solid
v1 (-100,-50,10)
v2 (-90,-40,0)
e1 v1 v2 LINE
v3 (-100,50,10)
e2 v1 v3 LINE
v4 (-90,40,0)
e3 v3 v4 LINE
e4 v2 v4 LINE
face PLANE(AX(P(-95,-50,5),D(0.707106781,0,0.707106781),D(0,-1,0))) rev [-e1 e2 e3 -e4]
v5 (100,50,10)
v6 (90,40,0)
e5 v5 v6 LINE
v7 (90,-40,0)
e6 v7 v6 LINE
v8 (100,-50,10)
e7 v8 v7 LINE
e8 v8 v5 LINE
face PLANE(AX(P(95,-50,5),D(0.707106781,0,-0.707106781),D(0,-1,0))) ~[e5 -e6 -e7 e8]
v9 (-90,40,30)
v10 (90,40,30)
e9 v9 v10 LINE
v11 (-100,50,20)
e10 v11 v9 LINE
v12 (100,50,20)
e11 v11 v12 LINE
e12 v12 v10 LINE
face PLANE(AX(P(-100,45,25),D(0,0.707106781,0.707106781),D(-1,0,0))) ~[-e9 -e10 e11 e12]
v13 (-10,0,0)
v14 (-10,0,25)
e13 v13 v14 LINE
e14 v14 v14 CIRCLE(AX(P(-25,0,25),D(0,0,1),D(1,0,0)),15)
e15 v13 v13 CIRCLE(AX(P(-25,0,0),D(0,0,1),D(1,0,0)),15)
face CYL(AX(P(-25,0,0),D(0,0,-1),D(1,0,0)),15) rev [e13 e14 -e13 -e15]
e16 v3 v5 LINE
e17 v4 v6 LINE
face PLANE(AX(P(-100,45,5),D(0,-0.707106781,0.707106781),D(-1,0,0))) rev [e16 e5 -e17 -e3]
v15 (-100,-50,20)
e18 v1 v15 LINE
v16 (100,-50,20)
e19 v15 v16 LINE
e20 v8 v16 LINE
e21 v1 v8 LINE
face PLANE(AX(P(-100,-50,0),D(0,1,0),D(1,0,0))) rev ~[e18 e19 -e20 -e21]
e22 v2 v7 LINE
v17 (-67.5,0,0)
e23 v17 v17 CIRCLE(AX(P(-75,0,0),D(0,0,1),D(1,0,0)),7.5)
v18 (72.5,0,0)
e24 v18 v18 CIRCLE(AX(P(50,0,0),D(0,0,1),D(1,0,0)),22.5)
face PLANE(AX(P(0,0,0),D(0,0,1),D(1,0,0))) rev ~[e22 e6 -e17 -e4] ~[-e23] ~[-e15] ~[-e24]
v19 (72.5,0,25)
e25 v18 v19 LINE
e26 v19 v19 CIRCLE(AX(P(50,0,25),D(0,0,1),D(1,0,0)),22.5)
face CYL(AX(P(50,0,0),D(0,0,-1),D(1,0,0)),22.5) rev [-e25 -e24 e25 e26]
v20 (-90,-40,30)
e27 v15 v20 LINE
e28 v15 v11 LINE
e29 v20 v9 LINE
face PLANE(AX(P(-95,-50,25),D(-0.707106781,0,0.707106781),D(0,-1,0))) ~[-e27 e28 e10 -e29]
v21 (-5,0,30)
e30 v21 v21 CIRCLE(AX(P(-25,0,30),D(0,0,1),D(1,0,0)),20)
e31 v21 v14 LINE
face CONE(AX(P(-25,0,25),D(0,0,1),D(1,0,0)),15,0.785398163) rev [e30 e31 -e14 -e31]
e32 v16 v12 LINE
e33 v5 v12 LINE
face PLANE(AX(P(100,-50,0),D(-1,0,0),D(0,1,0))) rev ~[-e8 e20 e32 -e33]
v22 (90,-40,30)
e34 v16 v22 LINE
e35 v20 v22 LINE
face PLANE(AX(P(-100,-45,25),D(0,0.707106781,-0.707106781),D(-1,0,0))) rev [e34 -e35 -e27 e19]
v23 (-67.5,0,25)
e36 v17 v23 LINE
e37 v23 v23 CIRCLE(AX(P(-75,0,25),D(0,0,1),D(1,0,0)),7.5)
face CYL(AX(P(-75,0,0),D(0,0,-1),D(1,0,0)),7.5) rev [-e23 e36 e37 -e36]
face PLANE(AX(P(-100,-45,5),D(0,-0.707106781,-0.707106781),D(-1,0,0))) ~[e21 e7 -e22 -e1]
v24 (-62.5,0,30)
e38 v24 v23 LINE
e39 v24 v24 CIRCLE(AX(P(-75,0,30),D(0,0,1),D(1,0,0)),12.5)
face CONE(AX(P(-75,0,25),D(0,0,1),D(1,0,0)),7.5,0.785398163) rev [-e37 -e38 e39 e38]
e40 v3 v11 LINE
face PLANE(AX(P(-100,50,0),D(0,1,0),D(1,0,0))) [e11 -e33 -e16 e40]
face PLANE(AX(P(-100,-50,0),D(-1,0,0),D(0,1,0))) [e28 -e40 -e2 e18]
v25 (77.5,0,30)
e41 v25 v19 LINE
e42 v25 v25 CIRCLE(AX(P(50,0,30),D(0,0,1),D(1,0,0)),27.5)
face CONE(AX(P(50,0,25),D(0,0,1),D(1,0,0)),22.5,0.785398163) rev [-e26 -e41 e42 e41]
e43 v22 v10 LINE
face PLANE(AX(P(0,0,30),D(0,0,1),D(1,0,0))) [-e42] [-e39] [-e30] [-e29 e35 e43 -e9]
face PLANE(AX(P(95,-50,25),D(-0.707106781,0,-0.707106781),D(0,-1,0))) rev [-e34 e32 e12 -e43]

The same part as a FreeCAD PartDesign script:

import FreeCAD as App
import Part
import Sketcher

V = App.Vector


def edges_at(feature, points):
    """Names of the edges that pass closest to the given points."""
    edges = feature.Shape.Edges
    near = lambda p: min(range(len(edges)), key=lambda i: edges[i].distToShape(Part.Vertex(*p))[0])
    return sorted({f"Edge{near(p) + 1}" for p in points})

doc = App.newDocument("Part")
body = doc.addObject("PartDesign::Body", "Body")

# Sketch on XY plane
sketch1 = body.newObject("Sketcher::SketchObject", "Sketch")
sketch1.AttachmentSupport = (doc.getObject("XY_Plane"), [""])
sketch1.MapMode = "FlatFace"
sketch1.addGeometry(Part.LineSegment(V(-100, 50, 0), V(-100, -50, 0)), False)
sketch1.addGeometry(Part.LineSegment(V(-100, -50, 0), V(100, -50, 0)), False)
sketch1.addGeometry(Part.LineSegment(V(100, -50, 0), V(100, 50, 0)), False)
sketch1.addGeometry(Part.LineSegment(V(100, 50, 0), V(-100, 50, 0)), False)
sketch1.addGeometry(Part.Circle(V(-75, 0, 0), V(0, 0, 1), 8), False)
sketch1.addGeometry(Part.Circle(V(-25, 0, 0), V(0, 0, 1), 15), False)
sketch1.addGeometry(Part.Circle(V(50, 0, 0), V(0, 0, 1), 22), False)
sketch1.addConstraint(Sketcher.Constraint("Coincident", 0, 2, 1, 1))
sketch1.addConstraint(Sketcher.Constraint("Coincident", 1, 2, 2, 1))
sketch1.addConstraint(Sketcher.Constraint("Coincident", 2, 2, 3, 1))
sketch1.addConstraint(Sketcher.Constraint("Coincident", 3, 2, 0, 1))
sketch1.addConstraint(Sketcher.Constraint("Vertical", 0))
sketch1.addConstraint(Sketcher.Constraint("Horizontal", 1))
sketch1.addConstraint(Sketcher.Constraint("Vertical", 2))
sketch1.addConstraint(Sketcher.Constraint("Horizontal", 3))
sketch1.addConstraint(Sketcher.Constraint("Symmetric", 0, 2, 2, 2, -1, 1))
sketch1.addConstraint(Sketcher.Constraint("PointOnObject", 4, 3, -1))
sketch1.addConstraint(Sketcher.Constraint("PointOnObject", 5, 3, -1))
sketch1.addConstraint(Sketcher.Constraint("PointOnObject", 6, 3, -1))
sketch1.addConstraint(Sketcher.Constraint("Diameter", 4, 15.0))
sketch1.addConstraint(Sketcher.Constraint("Diameter", 5, 30.0))
sketch1.addConstraint(Sketcher.Constraint("Diameter", 6, 45.0))
sketch1.addConstraint(Sketcher.Constraint("DistanceX", 1, 1, 1, 2, 200.0))
sketch1.addConstraint(Sketcher.Constraint("DistanceY", 0, 2, 0, 1, 100.0))
sketch1.addConstraint(Sketcher.Constraint("DistanceX", 4, 3, -1, 1, 75.0))
sketch1.addConstraint(Sketcher.Constraint("DistanceX", 5, 3, -1, 1, 25.0))
sketch1.addConstraint(Sketcher.Constraint("DistanceX", -1, 1, 6, 3, 50.0))
pad1 = body.newObject("PartDesign::Pad", "Pad")
pad1.Profile = sketch1
pad1.Length = 30
doc.recompute()

chamfer = body.newObject("PartDesign::Chamfer", "Chamfer")
chamfer.Base = (pad1, edges_at(pad1, [
    (-100, 0, 30),
    (0, 50, 30),
    (0, -50, 30),
    (100, 0, 30),
    (0, -50, 0),
    (-100, 0, 0),
    (0, 50, 0),
    (100, 0, 0),
]))
chamfer.Size = 10
doc.recompute()

chamfer2 = body.newObject("PartDesign::Chamfer", "Chamfer001")
chamfer2.Base = (chamfer, edges_at(chamfer, [(-40, 0, 30), (-82.5, 0, 30), (27.5, 0, 30)]))
chamfer2.Size = 5

doc.recompute()
